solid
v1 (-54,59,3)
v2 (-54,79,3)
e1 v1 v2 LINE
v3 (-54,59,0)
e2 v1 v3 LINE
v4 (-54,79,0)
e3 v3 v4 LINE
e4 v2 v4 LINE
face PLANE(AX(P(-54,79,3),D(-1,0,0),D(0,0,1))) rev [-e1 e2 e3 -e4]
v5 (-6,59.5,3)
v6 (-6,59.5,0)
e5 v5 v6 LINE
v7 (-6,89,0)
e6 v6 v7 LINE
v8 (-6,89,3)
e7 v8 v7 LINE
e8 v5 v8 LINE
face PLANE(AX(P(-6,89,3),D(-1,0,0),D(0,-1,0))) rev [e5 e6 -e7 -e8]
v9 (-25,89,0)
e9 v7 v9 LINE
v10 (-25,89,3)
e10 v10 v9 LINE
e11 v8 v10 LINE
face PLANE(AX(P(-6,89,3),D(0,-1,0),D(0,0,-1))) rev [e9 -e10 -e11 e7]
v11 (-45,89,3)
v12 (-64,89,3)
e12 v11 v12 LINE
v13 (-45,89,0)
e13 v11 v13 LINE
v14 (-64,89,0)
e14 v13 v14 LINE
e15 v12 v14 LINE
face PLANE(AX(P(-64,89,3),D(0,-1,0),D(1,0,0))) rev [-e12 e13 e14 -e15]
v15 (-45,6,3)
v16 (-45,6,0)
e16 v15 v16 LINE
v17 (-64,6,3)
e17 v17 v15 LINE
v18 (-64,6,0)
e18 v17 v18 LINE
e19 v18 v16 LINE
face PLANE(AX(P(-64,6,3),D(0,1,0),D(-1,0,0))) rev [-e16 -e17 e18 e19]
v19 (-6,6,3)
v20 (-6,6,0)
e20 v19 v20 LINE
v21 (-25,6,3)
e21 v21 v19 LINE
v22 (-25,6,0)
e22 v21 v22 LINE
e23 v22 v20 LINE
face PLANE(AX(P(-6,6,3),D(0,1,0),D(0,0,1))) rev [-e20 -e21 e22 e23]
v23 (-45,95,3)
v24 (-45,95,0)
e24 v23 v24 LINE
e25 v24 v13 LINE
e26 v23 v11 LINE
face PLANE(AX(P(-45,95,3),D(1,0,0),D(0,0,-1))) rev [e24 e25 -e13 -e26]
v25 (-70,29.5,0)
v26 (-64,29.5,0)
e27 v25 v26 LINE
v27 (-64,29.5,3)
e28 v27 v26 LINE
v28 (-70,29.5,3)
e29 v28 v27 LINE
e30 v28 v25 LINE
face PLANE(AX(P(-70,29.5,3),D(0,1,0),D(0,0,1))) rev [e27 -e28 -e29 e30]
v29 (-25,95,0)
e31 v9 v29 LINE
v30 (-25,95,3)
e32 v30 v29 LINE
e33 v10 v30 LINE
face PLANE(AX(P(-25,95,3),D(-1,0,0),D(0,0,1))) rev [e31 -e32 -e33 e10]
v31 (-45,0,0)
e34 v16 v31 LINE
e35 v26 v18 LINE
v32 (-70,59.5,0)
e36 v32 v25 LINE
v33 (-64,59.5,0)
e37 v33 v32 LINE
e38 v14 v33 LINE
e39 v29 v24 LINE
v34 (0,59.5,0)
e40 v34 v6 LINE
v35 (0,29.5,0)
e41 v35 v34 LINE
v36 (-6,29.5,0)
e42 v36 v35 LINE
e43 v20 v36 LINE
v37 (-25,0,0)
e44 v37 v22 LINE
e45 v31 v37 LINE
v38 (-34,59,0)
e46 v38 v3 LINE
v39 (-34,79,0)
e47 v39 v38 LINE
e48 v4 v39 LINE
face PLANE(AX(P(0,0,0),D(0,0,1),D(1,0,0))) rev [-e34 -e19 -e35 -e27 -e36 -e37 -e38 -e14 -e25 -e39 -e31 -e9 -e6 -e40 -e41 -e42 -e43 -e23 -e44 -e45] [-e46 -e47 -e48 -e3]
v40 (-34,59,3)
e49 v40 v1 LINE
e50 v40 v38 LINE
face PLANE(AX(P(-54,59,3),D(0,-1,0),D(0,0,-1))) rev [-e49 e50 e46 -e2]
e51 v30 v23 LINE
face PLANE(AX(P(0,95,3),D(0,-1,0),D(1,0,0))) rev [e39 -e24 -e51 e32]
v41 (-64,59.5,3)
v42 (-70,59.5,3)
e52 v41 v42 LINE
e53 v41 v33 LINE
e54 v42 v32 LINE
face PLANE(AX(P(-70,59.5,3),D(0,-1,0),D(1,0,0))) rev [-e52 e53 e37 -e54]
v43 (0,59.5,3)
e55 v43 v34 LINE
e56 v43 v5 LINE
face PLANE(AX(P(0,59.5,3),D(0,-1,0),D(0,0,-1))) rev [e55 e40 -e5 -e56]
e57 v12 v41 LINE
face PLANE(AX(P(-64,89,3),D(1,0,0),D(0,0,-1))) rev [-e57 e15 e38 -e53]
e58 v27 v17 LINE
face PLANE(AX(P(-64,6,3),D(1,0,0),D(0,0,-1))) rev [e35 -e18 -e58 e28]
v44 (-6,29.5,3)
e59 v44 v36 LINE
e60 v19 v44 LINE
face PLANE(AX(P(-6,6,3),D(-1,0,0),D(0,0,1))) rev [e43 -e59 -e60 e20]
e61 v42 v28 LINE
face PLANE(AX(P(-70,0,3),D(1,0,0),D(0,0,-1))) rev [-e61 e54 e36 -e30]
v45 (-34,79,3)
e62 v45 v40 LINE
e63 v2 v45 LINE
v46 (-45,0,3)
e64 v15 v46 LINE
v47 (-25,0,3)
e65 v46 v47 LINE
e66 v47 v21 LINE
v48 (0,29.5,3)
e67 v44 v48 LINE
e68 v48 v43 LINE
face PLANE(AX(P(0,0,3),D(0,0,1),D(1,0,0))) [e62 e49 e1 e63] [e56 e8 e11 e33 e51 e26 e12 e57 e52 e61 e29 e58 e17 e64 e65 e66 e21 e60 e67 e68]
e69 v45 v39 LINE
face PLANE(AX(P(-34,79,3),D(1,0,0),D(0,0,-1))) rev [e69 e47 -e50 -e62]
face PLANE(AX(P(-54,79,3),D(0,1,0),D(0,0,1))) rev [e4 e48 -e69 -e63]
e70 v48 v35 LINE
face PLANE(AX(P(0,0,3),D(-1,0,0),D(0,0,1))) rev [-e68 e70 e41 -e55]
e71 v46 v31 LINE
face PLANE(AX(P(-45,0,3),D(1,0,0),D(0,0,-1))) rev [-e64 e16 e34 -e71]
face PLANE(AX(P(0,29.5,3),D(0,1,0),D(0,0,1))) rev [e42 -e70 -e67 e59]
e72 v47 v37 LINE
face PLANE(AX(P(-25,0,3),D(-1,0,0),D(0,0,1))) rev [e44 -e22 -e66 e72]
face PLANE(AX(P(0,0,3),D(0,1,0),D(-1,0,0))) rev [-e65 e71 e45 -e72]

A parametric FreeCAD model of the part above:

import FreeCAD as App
import Part
import Sketcher

V = App.Vector


def add_polygon(sketch, points):
    """Adds a closed chain of lines whose ends are joined by coincident constraints."""
    first, n = sketch.GeometryCount, len(points)
    for a, b in zip(points, points[1:] + points[:1]):
        sketch.addGeometry(Part.LineSegment(App.Vector(*a, 0), App.Vector(*b, 0)), False)
    for i in range(n):
        sketch.addConstraint(Sketcher.Constraint("Coincident", first + i, 2, first + (i + 1) % n, 1))

doc = App.newDocument("Part")
body = doc.addObject("PartDesign::Body", "Body")

sketch1 = body.newObject("Sketcher::SketchObject", "Sketch")
sketch1.AttachmentSupport = (doc.getObject("XY_Plane"), [""])
sketch1.MapMode = "FlatFace"
add_polygon(sketch1, [(-70, 95), (-70, 0), (0, 0), (0, 95)])
sketch1.addConstraint(Sketcher.Constraint("Vertical", 0))
sketch1.addConstraint(Sketcher.Constraint("Horizontal", 1))
sketch1.addConstraint(Sketcher.Constraint("Vertical", 2))
sketch1.addConstraint(Sketcher.Constraint("Horizontal", 3))
sketch1.addConstraint(Sketcher.Constraint("Coincident", 1, 2, -1, 1))
sketch1.addConstraint(Sketcher.Constraint("DistanceX", 1, 1, 1, 2, 70.0))
sketch1.addConstraint(Sketcher.Constraint("DistanceY", 0, 2, 0, 1, 95.0))
pad1 = body.newObject("PartDesign::Pad", "Pad")
pad1.Profile = sketch1
pad1.Length = 3

sketch2 = body.newObject("Sketcher::SketchObject", "Sketch001")
sketch2.AttachmentSupport = (doc.getObject("XY_Plane"), [""])
sketch2.MapMode = "FlatFace"
add_polygon(sketch2, [(-25, 95), (0, 95), (0, 60), (-6, 60), (-6, 89), (-25, 89)])
add_polygon(sketch2, [(-70, 95), (-45, 95), (-45, 89), (-64, 89), (-64, 60), (-70, 60)])
add_polygon(sketch2, [(0, 0), (-25, 0), (-25, 6), (-6, 6), (-6, 30), (0, 30)])
add_polygon(sketch2, [(-45, 0), (-70, 0), (-70, 30), (-64, 30), (-64, 6), (-45, 6)])
add_polygon(sketch2, [(-34, 79), (-34, 59), (-54, 59), (-54, 79)])
sketch2.addConstraint(Sketcher.Constraint("Horizontal", 0))
sketch2.addConstraint(Sketcher.Constraint("Vertical", 1))
sketch2.addConstraint(Sketcher.Constraint("Horizontal", 2))
sketch2.addConstraint(Sketcher.Constraint("Vertical", 3))
sketch2.addConstraint(Sketcher.Constraint("Horizontal", 4))
sketch2.addConstraint(Sketcher.Constraint("Vertical", 5))
sketch2.addConstraint(Sketcher.Constraint("Horizontal", 6))
sketch2.addConstraint(Sketcher.Constraint("Vertical", 7))
sketch2.addConstraint(Sketcher.Constraint("Horizontal", 8))
sketch2.addConstraint(Sketcher.Constraint("Vertical", 9))
sketch2.addConstraint(Sketcher.Constraint("Horizontal", 10))
sketch2.addConstraint(Sketcher.Constraint("Vertical", 11))
sketch2.addConstraint(Sketcher.Constraint("Horizontal", 12))
sketch2.addConstraint(Sketcher.Constraint("Vertical", 13))
sketch2.addConstraint(Sketcher.Constraint("Horizontal", 14))
sketch2.addConstraint(Sketcher.Constraint("Vertical", 15))
sketch2.addConstraint(Sketcher.Constraint("Horizontal", 16))
sketch2.addConstraint(Sketcher.Constraint("Vertical", 17))
sketch2.addConstraint(Sketcher.Constraint("Horizontal", 18))
sketch2.addConstraint(Sketcher.Constraint("Vertical", 19))
sketch2.addConstraint(Sketcher.Constraint("Horizontal", 20))
sketch2.addConstraint(Sketcher.Constraint("Vertical", 21))
sketch2.addConstraint(Sketcher.Constraint("Horizontal", 22))
sketch2.addConstraint(Sketcher.Constraint("Vertical", 23))
sketch2.addConstraint(Sketcher.Constraint("Vertical", 24))
sketch2.addConstraint(Sketcher.Constraint("Horizontal", 25))
sketch2.addConstraint(Sketcher.Constraint("Vertical", 26))
sketch2.addConstraint(Sketcher.Constraint("Horizontal", 27))
sketch2.addConstraint(Sketcher.Constraint("Coincident", 17, 2, -1, 1))
sketch2.addConstraint(Sketcher.Constraint("PointOnObject", 0, 2, -2))
sketch2.addConstraint(Sketcher.Constraint("PointOnObject", 18, 2, -1))
sketch2.addConstraint(Sketcher.Constraint("Horizontal", 5, 2, 6, 2))
sketch2.addConstraint(Sketcher.Constraint("Horizontal", 4, 2, 7, 2))
sketch2.addConstraint(Sketcher.Constraint("Horizontal", 2, 2, 9, 2))
sketch2.addConstraint(Sketcher.Constraint("Horizontal", 16, 2, 19, 2))
sketch2.addConstraint(Sketcher.Constraint("Horizontal", 14, 2, 21, 2))
sketch2.addConstraint(Sketcher.Constraint("Vertical", 5, 2, 12, 2))
sketch2.addConstraint(Sketcher.Constraint("Vertical", 3, 2, 14, 2))
sketch2.addConstraint(Sketcher.Constraint("Vertical", 11, 2, 18, 2))
sketch2.addConstraint(Sketcher.Constraint("Vertical", 9, 2, 20, 2))
sketch2.addConstraint(Sketcher.Constraint("Vertical", 7, 2, 22, 2))
sketch2.addConstraint(Sketcher.Constraint("Equal", 0, 6))
sketch2.addConstraint(Sketcher.Constraint("Equal", 4, 8))
sketch2.addConstraint(Sketcher.Constraint("Equal", 20, 5))
sketch2.addConstraint(Sketcher.Constraint("Equal", 7, 13))
sketch2.addConstraint(Sketcher.Constraint("Equal", 9, 17))
sketch2.addConstraint(Sketcher.Constraint("Equal", 27, 24))
sketch2.addConstraint(Sketcher.Constraint("DistanceX", 0, 1, 0, 2, 25.0))
sketch2.addConstraint(Sketcher.Constraint("DistanceX", 2, 2, 2, 1, 6.0))
sketch2.addConstraint(Sketcher.Constraint("DistanceX", 25, 2, 25, 1, 20.0))
sketch2.addConstraint(Sketcher.Constraint("DistanceY", 1, 2, 1, 1, 35.5))
sketch2.addConstraint(Sketcher.Constraint("DistanceY", -1, 1, 0, 2, 95.0))
sketch2.addConstraint(Sketcher.Constraint("DistanceX", 6, 2, -1, 1, 45.0))
sketch2.addConstraint(Sketcher.Constraint("DistanceX", 24, 2, -1, 1, 34.0))
sketch2.addConstraint(Sketcher.Constraint("DistanceY", -1, 1, 24, 2, 59.0))
pocket1 = body.newObject("PartDesign::Pocket", "Pocket")
pocket1.Profile = sketch2
pocket1.Type = "ThroughAll"
pocket1.Reversed = True

doc.recompute()
